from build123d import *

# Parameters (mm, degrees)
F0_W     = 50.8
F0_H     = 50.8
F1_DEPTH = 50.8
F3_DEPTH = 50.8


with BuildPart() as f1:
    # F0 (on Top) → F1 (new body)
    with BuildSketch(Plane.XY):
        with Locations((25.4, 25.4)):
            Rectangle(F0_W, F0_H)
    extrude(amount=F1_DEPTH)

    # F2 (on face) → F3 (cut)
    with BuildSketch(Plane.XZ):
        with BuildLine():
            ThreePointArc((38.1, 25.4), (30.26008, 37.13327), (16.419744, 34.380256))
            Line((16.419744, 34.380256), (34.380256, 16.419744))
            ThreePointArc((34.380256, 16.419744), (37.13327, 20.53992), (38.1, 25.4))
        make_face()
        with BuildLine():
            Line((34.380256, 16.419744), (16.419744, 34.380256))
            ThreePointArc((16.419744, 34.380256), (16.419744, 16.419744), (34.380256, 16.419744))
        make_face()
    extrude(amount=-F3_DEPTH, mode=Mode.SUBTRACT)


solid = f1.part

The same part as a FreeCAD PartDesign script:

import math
import FreeCAD as App
import Part
import Sketcher

V = App.Vector
Q = App.Units.Quantity

doc = App.newDocument("Part")
body = doc.addObject("PartDesign::Body", "Body")

# Sketch on XY plane
sketch1 = doc.addObject("Sketcher::SketchObject", "Sketch")
body.addObject(sketch1)
sketch1.AttachmentSupport = (doc.XY_Plane, [""])
sketch1.MapMode = "FlatFace"
sketch1.addGeometry(Part.LineSegment(V(0, 51, 0), V(0, 0, 0)), False)
sketch1.addGeometry(Part.LineSegment(V(0, 0, 0), V(51, 0, 0)), False)
sketch1.addGeometry(Part.LineSegment(V(51, 0, 0), V(51, 51, 0)), False)
sketch1.addGeometry(Part.LineSegment(V(51, 51, 0), V(0, 51, 0)), False)
sketch1.addConstraint(Sketcher.Constraint("Coincident", 0, 2, 1, 1))
sketch1.addConstraint(Sketcher.Constraint("Coincident", 1, 2, 2, 1))
sketch1.addConstraint(Sketcher.Constraint("Coincident", 2, 2, 3, 1))
sketch1.addConstraint(Sketcher.Constraint("Coincident", 3, 2, 0, 1))
sketch1.addConstraint(Sketcher.Constraint("Vertical", 0))
sketch1.addConstraint(Sketcher.Constraint("Horizontal", 1))
sketch1.addConstraint(Sketcher.Constraint("Vertical", 2))
sketch1.addConstraint(Sketcher.Constraint("Horizontal", 3))
sketch1.addConstraint(Sketcher.Constraint("Coincident", 0, 2, -1, 1))
sketch1.addConstraint(Sketcher.Constraint("Equal", 3, 0))
sketch1.addConstraint(Sketcher.Constraint("DistanceX", 1, 1, 1, 2, Q("2 in")))
pad1 = doc.addObject("PartDesign::Pad", "Pad")
body.addObject(pad1)
pad1.Profile = sketch1
pad1.Length = Q("2 in")

# Sketch on XZ plane
sketch2 = doc.addObject("Sketcher::SketchObject", "Sketch001")
body.addObject(sketch2)
sketch2.AttachmentSupport = (doc.XZ_Plane, [""])
sketch2.MapMode = "FlatFace"
sketch2.addGeometry(Part.ArcOfCircle(Part.Circle(V(25, 25, 0), V(0, 0, 1), 13), math.radians(0), math.radians(135)), False)
sketch2.addGeometry(Part.ArcOfCircle(Part.Circle(V(25, 25, 0), V(0, 0, 1), 13), math.radians(135), math.radians(315)), False)
sketch2.addGeometry(Part.ArcOfCircle(Part.Circle(V(25, 25, 0), V(0, 0, 1), 13), math.radians(-45), math.radians(0)), False)
sketch2.addConstraint(Sketcher.Constraint("Tangent", 0, 2, 1, 1))
sketch2.addConstraint(Sketcher.Constraint("Tangent", 1, 2, 2, 1))
sketch2.addConstraint(Sketcher.Constraint("Tangent", 2, 2, 0, 1))
sketch2.addConstraint(Sketcher.Constraint("Horizontal", 1, 3, 2, 2))
sketch2.addConstraint(Sketcher.Constraint("Radius", 0, Q("0.5 in")))
sketch2.addConstraint(Sketcher.Constraint("DistanceX", -1, 1, 0, 3, Q("1 in")))
sketch2.addConstraint(Sketcher.Constraint("DistanceY", -1, 1, 0, 3, Q("1 in")))
sketch2.addConstraint(Sketcher.Constraint("DistanceX", 0, 2, 2, 3, 8.980258))
sketch2.addConstraint(Sketcher.Constraint("DistanceX", 0, 2, 1, 2, 17.960512))
pocket1 = doc.addObject("PartDesign::Pocket", "Pocket")
body.addObject(pocket1)
pocket1.Profile = sketch2
pocket1.Length = Q("2 in")

doc.recompute()
